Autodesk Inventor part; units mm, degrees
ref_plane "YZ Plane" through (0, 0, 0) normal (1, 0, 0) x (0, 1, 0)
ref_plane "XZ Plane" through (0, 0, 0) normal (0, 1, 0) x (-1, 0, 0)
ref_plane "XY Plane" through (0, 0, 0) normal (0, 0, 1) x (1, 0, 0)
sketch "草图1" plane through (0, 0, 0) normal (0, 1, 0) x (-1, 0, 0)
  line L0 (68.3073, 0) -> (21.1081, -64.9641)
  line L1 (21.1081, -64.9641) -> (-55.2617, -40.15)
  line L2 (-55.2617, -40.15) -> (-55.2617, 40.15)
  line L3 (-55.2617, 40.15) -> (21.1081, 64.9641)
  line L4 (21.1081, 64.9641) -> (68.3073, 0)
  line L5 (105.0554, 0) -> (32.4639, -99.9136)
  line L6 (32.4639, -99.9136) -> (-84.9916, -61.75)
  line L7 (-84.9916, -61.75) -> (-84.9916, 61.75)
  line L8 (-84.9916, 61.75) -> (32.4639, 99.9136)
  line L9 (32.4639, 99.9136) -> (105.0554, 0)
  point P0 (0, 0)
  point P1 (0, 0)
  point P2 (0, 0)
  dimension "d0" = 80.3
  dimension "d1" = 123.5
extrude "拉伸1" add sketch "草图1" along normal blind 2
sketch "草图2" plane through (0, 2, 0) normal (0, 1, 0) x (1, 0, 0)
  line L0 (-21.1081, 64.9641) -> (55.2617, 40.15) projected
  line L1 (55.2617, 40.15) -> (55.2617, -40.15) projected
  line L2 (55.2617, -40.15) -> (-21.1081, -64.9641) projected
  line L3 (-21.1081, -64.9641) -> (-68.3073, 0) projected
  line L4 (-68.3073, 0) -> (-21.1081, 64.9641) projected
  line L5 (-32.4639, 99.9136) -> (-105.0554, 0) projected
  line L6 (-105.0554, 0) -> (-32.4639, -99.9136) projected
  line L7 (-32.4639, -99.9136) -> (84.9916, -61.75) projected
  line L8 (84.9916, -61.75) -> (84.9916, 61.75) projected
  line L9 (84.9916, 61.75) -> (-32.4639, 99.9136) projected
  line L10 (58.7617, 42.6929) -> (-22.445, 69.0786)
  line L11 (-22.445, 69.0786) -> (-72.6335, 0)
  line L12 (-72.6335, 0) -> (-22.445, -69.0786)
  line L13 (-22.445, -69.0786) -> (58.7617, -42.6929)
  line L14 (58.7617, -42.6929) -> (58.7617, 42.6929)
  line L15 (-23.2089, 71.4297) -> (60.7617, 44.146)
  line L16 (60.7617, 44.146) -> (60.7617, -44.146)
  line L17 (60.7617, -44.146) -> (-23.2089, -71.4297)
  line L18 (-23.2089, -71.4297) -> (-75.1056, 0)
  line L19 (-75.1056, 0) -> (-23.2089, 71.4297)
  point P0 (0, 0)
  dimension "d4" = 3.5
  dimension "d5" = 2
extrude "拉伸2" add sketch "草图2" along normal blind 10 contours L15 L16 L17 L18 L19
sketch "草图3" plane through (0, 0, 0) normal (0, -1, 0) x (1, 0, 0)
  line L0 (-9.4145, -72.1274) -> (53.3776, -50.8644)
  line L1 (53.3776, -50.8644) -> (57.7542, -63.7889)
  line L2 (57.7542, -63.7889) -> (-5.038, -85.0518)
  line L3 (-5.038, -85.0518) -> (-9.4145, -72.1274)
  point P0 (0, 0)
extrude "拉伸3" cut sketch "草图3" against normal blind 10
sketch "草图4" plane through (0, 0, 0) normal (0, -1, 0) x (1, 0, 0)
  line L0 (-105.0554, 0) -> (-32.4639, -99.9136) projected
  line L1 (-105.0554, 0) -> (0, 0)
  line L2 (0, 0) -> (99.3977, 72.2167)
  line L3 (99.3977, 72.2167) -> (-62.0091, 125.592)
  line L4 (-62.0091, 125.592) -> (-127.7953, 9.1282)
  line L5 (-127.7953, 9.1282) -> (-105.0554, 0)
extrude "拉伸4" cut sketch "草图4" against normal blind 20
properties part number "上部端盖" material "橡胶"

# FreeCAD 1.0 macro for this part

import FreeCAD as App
import Part
import Sketcher
from FreeCAD import Vector
Q = App.Units.Quantity

doc = App.newDocument("Part")
body = doc.addObject("PartDesign::Body", "Body")

# Sketch on XZ plane
sketch1 = body.newObject("Sketcher::SketchObject", "Sketch")
sketch1.AttachmentSupport = (doc.getObject("XZ_Plane"), [""])
sketch1.MapMode = "FlatFace"
sketch1.addGeometry([
    Part.LineSegment(Vector(-32, -100, 0), Vector(-105, 0, 0)),  # 0
    Part.LineSegment(Vector(-105, 0, 0), Vector(-32, 100, 0)),  # 1
    Part.LineSegment(Vector(-32, 100, 0), Vector(85, 62, 0)),  # 2
    Part.LineSegment(Vector(85, 62, 0), Vector(85, -62, 0)),  # 3
    Part.LineSegment(Vector(85, -62, 0), Vector(-32, -100, 0)),  # 4
    Part.LineSegment(Vector(-21, 65, 0), Vector(-68, 0, 0)),  # 5
    Part.LineSegment(Vector(-68, 0, 0), Vector(-21, -65, 0)),  # 6
    Part.LineSegment(Vector(-21, -65, 0), Vector(55, -40, 0)),  # 7
    Part.LineSegment(Vector(55, -40, 0), Vector(55, 40, 0)),  # 8
    Part.LineSegment(Vector(55, 40, 0), Vector(-21, 65, 0)),  # 9
], False)
sketch1.addConstraint([
    Sketcher.Constraint("Coincident", 0, 2, 1, 1),
    Sketcher.Constraint("Coincident", 1, 2, 2, 1),
    Sketcher.Constraint("Coincident", 2, 2, 3, 1),
    Sketcher.Constraint("Coincident", 3, 2, 4, 1),
    Sketcher.Constraint("Coincident", 4, 2, 0, 1),
    Sketcher.Constraint("Coincident", 5, 2, 6, 1),
    Sketcher.Constraint("Coincident", 6, 2, 7, 1),
    Sketcher.Constraint("Coincident", 7, 2, 8, 1),
    Sketcher.Constraint("Coincident", 8, 2, 9, 1),
    Sketcher.Constraint("Coincident", 9, 2, 5, 1),
    Sketcher.Constraint("Vertical", 3),
    Sketcher.Constraint("Vertical", 8),
    Sketcher.Constraint("Symmetric", 1, 2, 4, 2, -1),
    Sketcher.Constraint("Symmetric", 6, 2, 9, 2, -1),
    Sketcher.Constraint("PointOnObject", 0, 2, -1),
    Sketcher.Constraint("PointOnObject", 5, 2, -1),
    Sketcher.Constraint("Parallel", 1, 5),
    Sketcher.Constraint("Parallel", 4, 7),
    Sketcher.Constraint("Parallel", 2, 9),
    Sketcher.Constraint("Equal", 1, 2),
    Sketcher.Constraint("Equal", 2, 4),
    Sketcher.Constraint("Equal", 6, 7),
    Sketcher.Constraint("DistanceY", 3, 2, 3, 1, 123.5),
    Sketcher.Constraint("DistanceY", 8, 1, 8, 2, 80.3),
    Sketcher.Constraint("Distance", 0, 123.5),
    Sketcher.Constraint("Angle", 0, Q("126 deg")),
    Sketcher.Constraint("DistanceX", 7, 2, 3, 2, 29.73),
    Sketcher.Constraint("DistanceX", 1, 2, -1, 1, 32.464),
])
pad1 = body.newObject("PartDesign::Pad", "Pad")
pad1.Profile = sketch1
pad1.Length = 2
pad1.Reversed = True

# Sketch on XZ plane
sketch2 = body.newObject("Sketcher::SketchObject", "Sketch001")
sketch2.AttachmentSupport = (doc.getObject("XZ_Plane"), [""])
sketch2.MapMode = "FlatFace"
sketch2.AttachmentOffset = App.Placement(Vector(0, 0, -2), App.Rotation())
sketch2.addGeometry([
    Part.LineSegment(Vector(61, -44, 0), Vector(-23, -71, 0)),  # 0
    Part.LineSegment(Vector(-23, -71, 0), Vector(-75, 0, 0)),  # 1
    Part.LineSegment(Vector(-75, 0, 0), Vector(-23, 71, 0)),  # 2
    Part.LineSegment(Vector(-23, 71, 0), Vector(61, 44, 0)),  # 3
    Part.LineSegment(Vector(61, 44, 0), Vector(61, -44, 0)),  # 4
    Part.LineSegment(Vector(-22, -69, 0), Vector(59, -43, 0)),  # 5
    Part.LineSegment(Vector(59, -43, 0), Vector(59, 43, 0)),  # 6
    Part.LineSegment(Vector(59, 43, 0), Vector(-22, 69, 0)),  # 7
    Part.LineSegment(Vector(-22, 69, 0), Vector(-73, 0, 0)),  # 8
    Part.LineSegment(Vector(-73, 0, 0), Vector(-22, -69, 0)),  # 9
], False)
sketch2.addConstraint([
    Sketcher.Constraint("Coincident", 0, 2, 1, 1),
    Sketcher.Constraint("Coincident", 1, 2, 2, 1),
    Sketcher.Constraint("Coincident", 2, 2, 3, 1),
    Sketcher.Constraint("Coincident", 3, 2, 4, 1),
    Sketcher.Constraint("Coincident", 4, 2, 0, 1),
    Sketcher.Constraint("Coincident", 5, 2, 6, 1),
    Sketcher.Constraint("Coincident", 6, 2, 7, 1),
    Sketcher.Constraint("Coincident", 7, 2, 8, 1),
    Sketcher.Constraint("Coincident", 8, 2, 9, 1),
    Sketcher.Constraint("Coincident", 9, 2, 5, 1),
    Sketcher.Constraint("Vertical", 4),
    Sketcher.Constraint("Vertical", 6),
    Sketcher.Constraint("Symmetric", 0, 2, 2, 2, -1),
    Sketcher.Constraint("Symmetric", 7, 2, 9, 2, -1),
    Sketcher.Constraint("PointOnObject", 1, 2, -1),
    Sketcher.Constraint("PointOnObject", 8, 2, -1),
    Sketcher.Constraint("Parallel", 0, 5),
    Sketcher.Constraint("Parallel", 3, 7),
    Sketcher.Constraint("Parallel", 2, 8),
    Sketcher.Constraint("Equal", 0, 1),
    Sketcher.Constraint("Equal", 2, 3),
    Sketcher.Constraint("Equal", 7, 8),
    Sketcher.Constraint("DistanceX", 5, 2, 4, 2, 2.0),
    Sketcher.Constraint("Angle", 0, Q("-162 deg")),
    Sketcher.Constraint("Angle", 1, Q("126 deg")),
    Sketcher.Constraint("DistanceY", 4, 2, 4, 1, 88.292),
    Sketcher.Constraint("DistanceY", 6, 1, 6, 2, 85.3858),
    Sketcher.Constraint("DistanceX", 0, 2, -1, 1, 23.209),
])
pad2 = body.newObject("PartDesign::Pad", "Pad001")
pad2.Profile = sketch2
pad2.Length = 10
pad2.Reversed = True

# Sketch on XZ plane
sketch3 = body.newObject("Sketcher::SketchObject", "Sketch002")
sketch3.AttachmentSupport = (doc.getObject("XZ_Plane"), [""])
sketch3.MapMode = "FlatFace"
sketch3.addGeometry([
    Part.LineSegment(Vector(53, -51, 0), Vector(-9, -72, 0)),
    Part.LineSegment(Vector(-9, -72, 0), Vector(-5, -85, 0)),
    Part.LineSegment(Vector(-5, -85, 0), Vector(58, -64, 0)),
    Part.LineSegment(Vector(58, -64, 0), Vector(53, -51, 0)),
], False)
sketch3.addConstraint([
    Sketcher.Constraint("Coincident", 0, 2, 1, 1),
    Sketcher.Constraint("Coincident", 1, 2, 2, 1),
    Sketcher.Constraint("Coincident", 2, 2, 3, 1),
    Sketcher.Constraint("Coincident", 3, 2, 0, 1),
    Sketcher.Constraint("Perpendicular", 0, 1),
    Sketcher.Constraint("Perpendicular", 1, 2),
    Sketcher.Constraint("Perpendicular", 2, 3),
    Sketcher.Constraint("DistanceX", 1, 2, -1, 1, 5.038),
    Sketcher.Constraint("DistanceY", 2, 2, -1, 1, 63.789),
    Sketcher.Constraint("DistanceY", 1, 2, 2, 2, 21.263),
    Sketcher.Constraint("DistanceX", 0, 2, 3, 2, 62.792),
    Sketcher.Constraint("Distance", 1, 13.6453),
])
pocket1 = body.newObject("PartDesign::Pocket", "Pocket")
pocket1.Profile = sketch3
pocket1.Length = 10

# Sketch on XZ plane
sketch4 = body.newObject("Sketcher::SketchObject", "Sketch003")
sketch4.AttachmentSupport = (doc.getObject("XZ_Plane"), [""])
sketch4.MapMode = "FlatFace"
sketch4.addGeometry([
    Part.LineSegment(Vector(-128, 9, 0), Vector(-105, 0, 0)),  # 0
    Part.LineSegment(Vector(-105, 0, 0), Vector(0, 0, 0)),  # 1
    Part.LineSegment(Vector(0, 0, 0), Vector(99, 72, 0)),  # 2
    Part.LineSegment(Vector(99, 72, 0), Vector(-62, 126, 0)),  # 3
    Part.LineSegment(Vector(-62, 126, 0), Vector(-128, 9, 0)),  # 4
], False)
sketch4.addConstraint([
    Sketcher.Constraint("Coincident", 0, 2, 1, 1),
    Sketcher.Constraint("Coincident", 1, 2, 2, 1),
    Sketcher.Constraint("Coincident", 2, 2, 3, 1),
    Sketcher.Constraint("Coincident", 3, 2, 4, 1),
    Sketcher.Constraint("Coincident", 4, 2, 0, 1),
    Sketcher.Constraint("Horizontal", 1),
    Sketcher.Constraint("Coincident", 1, 2, -1, 1),
    Sketcher.Constraint("Angle", 2, Q("36 deg")),
    Sketcher.Constraint("Angle", 4, Q("-119.4605 deg")),
    Sketcher.Constraint("DistanceX", 4, 2, 0, 2, 22.74),
    Sketcher.Constraint("DistanceX", 1, 1, 1, 2, 105.0554),
    Sketcher.Constraint("DistanceX", 3, 2, -1, 1, 62.009),
    Sketcher.Constraint("DistanceY", -1, 1, 3, 2, 125.592),
    Sketcher.Constraint("DistanceX", 0, 2, 2, 2, 204.453),
])
pocket2 = body.newObject("PartDesign::Pocket", "Pocket001")
pocket2.Profile = sketch4
pocket2.Length = 20

doc.recompute()
